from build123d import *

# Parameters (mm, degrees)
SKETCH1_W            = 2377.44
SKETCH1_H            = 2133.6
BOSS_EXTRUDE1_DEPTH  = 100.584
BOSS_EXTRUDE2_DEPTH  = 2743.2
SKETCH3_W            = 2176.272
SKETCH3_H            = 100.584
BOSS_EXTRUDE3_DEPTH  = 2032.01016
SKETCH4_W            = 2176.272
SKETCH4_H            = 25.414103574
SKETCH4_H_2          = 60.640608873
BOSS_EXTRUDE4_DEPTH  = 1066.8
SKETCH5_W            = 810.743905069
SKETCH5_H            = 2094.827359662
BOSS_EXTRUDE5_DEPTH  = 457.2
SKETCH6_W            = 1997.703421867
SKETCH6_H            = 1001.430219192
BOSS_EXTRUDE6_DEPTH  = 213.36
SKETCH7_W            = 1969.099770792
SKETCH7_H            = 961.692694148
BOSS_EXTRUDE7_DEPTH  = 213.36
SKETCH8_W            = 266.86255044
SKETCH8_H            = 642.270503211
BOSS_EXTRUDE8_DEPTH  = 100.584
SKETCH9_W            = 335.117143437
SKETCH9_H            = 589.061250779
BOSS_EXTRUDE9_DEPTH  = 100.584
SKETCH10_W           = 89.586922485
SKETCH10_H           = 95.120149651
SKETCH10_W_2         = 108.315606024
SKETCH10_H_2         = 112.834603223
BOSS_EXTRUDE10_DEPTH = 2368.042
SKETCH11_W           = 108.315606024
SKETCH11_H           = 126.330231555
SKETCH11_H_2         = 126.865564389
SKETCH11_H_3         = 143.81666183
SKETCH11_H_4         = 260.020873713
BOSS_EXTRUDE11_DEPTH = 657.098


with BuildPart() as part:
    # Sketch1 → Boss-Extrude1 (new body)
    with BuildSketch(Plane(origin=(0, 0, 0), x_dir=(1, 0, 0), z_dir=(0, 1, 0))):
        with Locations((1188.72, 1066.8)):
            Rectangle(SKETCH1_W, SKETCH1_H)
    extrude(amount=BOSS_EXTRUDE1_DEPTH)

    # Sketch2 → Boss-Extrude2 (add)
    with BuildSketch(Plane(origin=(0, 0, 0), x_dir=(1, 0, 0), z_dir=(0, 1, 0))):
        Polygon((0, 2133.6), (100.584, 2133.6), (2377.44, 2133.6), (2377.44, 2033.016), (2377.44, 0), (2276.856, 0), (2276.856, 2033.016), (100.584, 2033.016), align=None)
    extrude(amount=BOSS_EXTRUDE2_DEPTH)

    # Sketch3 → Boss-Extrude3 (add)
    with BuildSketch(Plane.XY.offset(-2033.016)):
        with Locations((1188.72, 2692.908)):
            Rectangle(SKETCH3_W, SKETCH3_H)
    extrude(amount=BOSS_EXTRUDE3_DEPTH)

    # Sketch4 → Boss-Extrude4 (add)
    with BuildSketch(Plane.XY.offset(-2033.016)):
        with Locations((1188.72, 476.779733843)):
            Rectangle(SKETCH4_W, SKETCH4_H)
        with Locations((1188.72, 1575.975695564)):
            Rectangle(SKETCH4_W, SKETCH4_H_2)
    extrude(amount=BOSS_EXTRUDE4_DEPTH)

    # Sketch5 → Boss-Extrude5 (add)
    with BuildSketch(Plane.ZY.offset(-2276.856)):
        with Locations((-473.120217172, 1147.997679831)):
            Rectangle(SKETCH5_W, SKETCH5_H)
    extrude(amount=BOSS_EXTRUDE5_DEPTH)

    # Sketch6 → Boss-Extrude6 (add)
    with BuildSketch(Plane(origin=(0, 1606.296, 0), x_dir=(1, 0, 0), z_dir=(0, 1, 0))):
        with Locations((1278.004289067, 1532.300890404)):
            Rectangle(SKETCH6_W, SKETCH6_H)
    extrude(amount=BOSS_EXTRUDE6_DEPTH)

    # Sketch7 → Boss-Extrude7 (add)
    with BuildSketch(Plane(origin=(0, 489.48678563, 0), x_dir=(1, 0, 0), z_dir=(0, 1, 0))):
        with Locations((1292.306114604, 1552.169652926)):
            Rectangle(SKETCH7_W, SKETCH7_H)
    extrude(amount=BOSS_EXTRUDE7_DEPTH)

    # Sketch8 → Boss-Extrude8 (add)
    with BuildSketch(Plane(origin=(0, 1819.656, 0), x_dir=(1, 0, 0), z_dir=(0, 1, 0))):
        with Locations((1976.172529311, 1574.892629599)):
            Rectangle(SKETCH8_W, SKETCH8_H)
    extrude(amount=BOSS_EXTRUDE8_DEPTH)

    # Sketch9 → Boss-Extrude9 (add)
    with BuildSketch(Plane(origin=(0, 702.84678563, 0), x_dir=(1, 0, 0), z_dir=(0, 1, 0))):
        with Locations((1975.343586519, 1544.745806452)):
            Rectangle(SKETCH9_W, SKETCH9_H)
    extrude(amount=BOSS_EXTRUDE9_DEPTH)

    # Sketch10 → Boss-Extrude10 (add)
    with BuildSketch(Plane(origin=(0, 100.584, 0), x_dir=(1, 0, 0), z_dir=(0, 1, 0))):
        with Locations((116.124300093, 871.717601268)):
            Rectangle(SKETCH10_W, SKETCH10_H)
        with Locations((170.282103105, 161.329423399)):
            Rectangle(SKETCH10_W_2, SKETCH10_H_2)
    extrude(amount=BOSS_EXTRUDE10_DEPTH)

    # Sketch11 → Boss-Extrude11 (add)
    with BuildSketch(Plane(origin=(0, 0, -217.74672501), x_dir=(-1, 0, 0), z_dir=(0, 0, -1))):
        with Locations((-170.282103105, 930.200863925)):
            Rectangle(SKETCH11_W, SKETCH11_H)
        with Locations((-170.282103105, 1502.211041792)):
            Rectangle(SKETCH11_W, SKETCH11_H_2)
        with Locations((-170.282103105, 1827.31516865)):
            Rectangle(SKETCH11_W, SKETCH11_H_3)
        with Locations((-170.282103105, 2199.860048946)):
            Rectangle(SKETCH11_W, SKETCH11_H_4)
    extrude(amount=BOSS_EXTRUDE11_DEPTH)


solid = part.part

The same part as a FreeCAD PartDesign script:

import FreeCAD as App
import Part
import Sketcher
from FreeCAD import Vector
Q = App.Units.Quantity

doc = App.newDocument("Part")
body = doc.addObject("PartDesign::Body", "Body")

# Sketch on XZ plane
sketch1 = body.newObject("Sketcher::SketchObject", "Sketch")
sketch1.AttachmentSupport = (doc.getObject("XZ_Plane"), [""])
sketch1.MapMode = "FlatFace"
sketch1.addGeometry(Part.LineSegment(Vector(0, -2134, 0), Vector(0, 0, 0)), False)
sketch1.addGeometry(Part.LineSegment(Vector(0, 0, 0), Vector(2377, 0, 0)), False)
sketch1.addGeometry(Part.LineSegment(Vector(2377, 0, 0), Vector(2377, -2134, 0)), False)
sketch1.addGeometry(Part.LineSegment(Vector(2377, -2134, 0), Vector(0, -2134, 0)), False)
sketch1.addConstraint(Sketcher.Constraint("Coincident", 0, 2, 1, 1))
sketch1.addConstraint(Sketcher.Constraint("Coincident", 1, 2, 2, 1))
sketch1.addConstraint(Sketcher.Constraint("Coincident", 2, 2, 3, 1))
sketch1.addConstraint(Sketcher.Constraint("Coincident", 3, 2, 0, 1))
sketch1.addConstraint(Sketcher.Constraint("Vertical", 0))
sketch1.addConstraint(Sketcher.Constraint("Horizontal", 1))
sketch1.addConstraint(Sketcher.Constraint("Vertical", 2))
sketch1.addConstraint(Sketcher.Constraint("Horizontal", 3))
sketch1.addConstraint(Sketcher.Constraint("Coincident", 0, 2, -1, 1))
sketch1.addConstraint(Sketcher.Constraint("DistanceY", 0, 1, 0, 2, Q("84 in")))
sketch1.addConstraint(Sketcher.Constraint("DistanceX", 1, 1, 1, 2, Q("93.6 in")))
pad1 = body.newObject("PartDesign::Pad", "Pad")
pad1.Profile = sketch1
pad1.Length = Q("3.96 in")
pad1.Reversed = True

# Sketch on XZ plane
sketch2 = body.newObject("Sketcher::SketchObject", "Sketch001")
sketch2.AttachmentSupport = (doc.getObject("XZ_Plane"), [""])
sketch2.MapMode = "FlatFace"
sketch2.addGeometry(Part.LineSegment(Vector(2377, -2134, 0), Vector(0, -2134, 0)), False)
sketch2.addGeometry(Part.LineSegment(Vector(0, -2134, 0), Vector(101, -2033, 0)), False)
sketch2.addGeometry(Part.LineSegment(Vector(101, -2033, 0), Vector(2277, -2033, 0)), False)
sketch2.addGeometry(Part.LineSegment(Vector(2277, -2033, 0), Vector(2277, 0, 0)), False)
sketch2.addGeometry(Part.LineSegment(Vector(2277, 0, 0), Vector(2377, 0, 0)), False)
sketch2.addGeometry(Part.LineSegment(Vector(2377, 0, 0), Vector(2377, -2134, 0)), False)
sketch2.addConstraint(Sketcher.Constraint("Coincident", 0, 2, 1, 1))
sketch2.addConstraint(Sketcher.Constraint("Coincident", 1, 2, 2, 1))
sketch2.addConstraint(Sketcher.Constraint("Coincident", 2, 2, 3, 1))
sketch2.addConstraint(Sketcher.Constraint("Coincident", 3, 2, 4, 1))
sketch2.addConstraint(Sketcher.Constraint("Coincident", 4, 2, 5, 1))
sketch2.addConstraint(Sketcher.Constraint("Coincident", 5, 2, 0, 1))
sketch2.addConstraint(Sketcher.Constraint("Horizontal", 0))
sketch2.addConstraint(Sketcher.Constraint("Horizontal", 2))
sketch2.addConstraint(Sketcher.Constraint("Vertical", 3))
sketch2.addConstraint(Sketcher.Constraint("Horizontal", 4))
sketch2.addConstraint(Sketcher.Constraint("Vertical", 5))
sketch2.addConstraint(Sketcher.Constraint("PointOnObject", 0, 2, -2))
sketch2.addConstraint(Sketcher.Constraint("PointOnObject", 3, 2, -1))
sketch2.addConstraint(Sketcher.Constraint("DistanceY", 5, 2, 5, 1, Q("84 in")))
sketch2.addConstraint(Sketcher.Constraint("DistanceX", 0, 2, 0, 1, Q("93.6 in")))
sketch2.addConstraint(Sketcher.Constraint("Angle", 1, Q("45 deg")))
sketch2.addConstraint(Sketcher.Constraint("DistanceX", 2, 1, 2, 2, Q("85.68 in")))
sketch2.addConstraint(Sketcher.Constraint("DistanceX", 4, 1, 4, 2, Q("3.96 in")))
pad2 = body.newObject("PartDesign::Pad", "Pad001")
pad2.Profile = sketch2
pad2.Length = Q("108 in")
pad2.Reversed = True

# Sketch on XY plane
sketch3 = body.newObject("Sketcher::SketchObject", "Sketch002")
sketch3.AttachmentSupport = (doc.getObject("XY_Plane"), [""])
sketch3.MapMode = "FlatFace"
sketch3.AttachmentOffset = App.Placement(Vector(0, 0, -80.04 * 25.4), App.Rotation())
sketch3.addGeometry(Part.LineSegment(Vector(101, 2743, 0), Vector(101, 2643, 0)), False)
sketch3.addGeometry(Part.LineSegment(Vector(101, 2643, 0), Vector(2277, 2643, 0)), False)
sketch3.addGeometry(Part.LineSegment(Vector(2277, 2643, 0), Vector(2277, 2743, 0)), False)
sketch3.addGeometry(Part.LineSegment(Vector(2277, 2743, 0), Vector(101, 2743, 0)), False)
sketch3.addConstraint(Sketcher.Constraint("Coincident", 0, 2, 1, 1))
sketch3.addConstraint(Sketcher.Constraint("Coincident", 1, 2, 2, 1))
sketch3.addConstraint(Sketcher.Constraint("Coincident", 2, 2, 3, 1))
sketch3.addConstraint(Sketcher.Constraint("Coincident", 3, 2, 0, 1))
sketch3.addConstraint(Sketcher.Constraint("Vertical", 0))
sketch3.addConstraint(Sketcher.Constraint("Horizontal", 1))
sketch3.addConstraint(Sketcher.Constraint("Vertical", 2))
sketch3.addConstraint(Sketcher.Constraint("Horizontal", 3))
sketch3.addConstraint(Sketcher.Constraint("DistanceY", -1, 1, 2, 2, Q("108 in")))
sketch3.addConstraint(Sketcher.Constraint("DistanceX", 1, 1, 1, 2, Q("85.68 in")))
sketch3.addConstraint(Sketcher.Constraint("DistanceY", 0, 2, 0, 1, Q("3.96 in")))
sketch3.addConstraint(Sketcher.Constraint("DistanceX", -1, 1, 0, 2, Q("3.96 in")))
pad3 = body.newObject("PartDesign::Pad", "Pad002")
pad3.Profile = sketch3
pad3.Length = Q("80.0004 in")

# Sketch on XY plane
sketch4 = body.newObject("Sketcher::SketchObject", "Sketch003")
sketch4.AttachmentSupport = (doc.getObject("XY_Plane"), [""])
sketch4.MapMode = "FlatFace"
sketch4.AttachmentOffset = App.Placement(Vector(0, 0, -80.04 * 25.4), App.Rotation())
sketch4.addGeometry(Part.LineSegment(Vector(101, 489, 0), Vector(101, 464, 0)), False)
sketch4.addGeometry(Part.LineSegment(Vector(101, 464, 0), Vector(2277, 464, 0)), False)
sketch4.addGeometry(Part.LineSegment(Vector(2277, 464, 0), Vector(2277, 489, 0)), False)
sketch4.addGeometry(Part.LineSegment(Vector(2277, 489, 0), Vector(101, 489, 0)), False)
sketch4.addGeometry(Part.LineSegment(Vector(101, 1606, 0), Vector(101, 1546, 0)), False)
sketch4.addGeometry(Part.LineSegment(Vector(101, 1546, 0), Vector(2277, 1546, 0)), False)
sketch4.addGeometry(Part.LineSegment(Vector(2277, 1546, 0), Vector(2277, 1606, 0)), False)
sketch4.addGeometry(Part.LineSegment(Vector(2277, 1606, 0), Vector(101, 1606, 0)), False)
sketch4.addConstraint(Sketcher.Constraint("Coincident", 0, 2, 1, 1))
sketch4.addConstraint(Sketcher.Constraint("Coincident", 1, 2, 2, 1))
sketch4.addConstraint(Sketcher.Constraint("Coincident", 2, 2, 3, 1))
sketch4.addConstraint(Sketcher.Constraint("Coincident", 3, 2, 0, 1))
sketch4.addConstraint(Sketcher.Constraint("Coincident", 4, 2, 5, 1))
sketch4.addConstraint(Sketcher.Constraint("Coincident", 5, 2, 6, 1))
sketch4.addConstraint(Sketcher.Constraint("Coincident", 6, 2, 7, 1))
sketch4.addConstraint(Sketcher.Constraint("Coincident", 7, 2, 4, 1))
sketch4.addConstraint(Sketcher.Constraint("Vertical", 0))
sketch4.addConstraint(Sketcher.Constraint("Horizontal", 1))
sketch4.addConstraint(Sketcher.Constraint("Vertical", 2))
sketch4.addConstraint(Sketcher.Constraint("Horizontal", 3))
sketch4.addConstraint(Sketcher.Constraint("Vertical", 4))
sketch4.addConstraint(Sketcher.Constraint("Horizontal", 5))
sketch4.addConstraint(Sketcher.Constraint("Vertical", 6))
sketch4.addConstraint(Sketcher.Constraint("Horizontal", 7))
sketch4.addConstraint(Sketcher.Constraint("Vertical", 3, 2, 4, 2))
sketch4.addConstraint(Sketcher.Constraint("Vertical", 2, 2, 5, 2))
sketch4.addConstraint(Sketcher.Constraint("DistanceX", 1, 1, 1, 2, Q("85.68 in")))
sketch4.addConstraint(Sketcher.Constraint("DistanceX", -1, 1, 0, 2, Q("3.96 in")))
sketch4.addConstraint(Sketcher.Constraint("DistanceY", -1, 1, 6, 2, Q("63.24 in")))
sketch4.addConstraint(Sketcher.Constraint("DistanceY", 4, 2, 4, 1, Q("60.640609 mm")))
sketch4.addConstraint(Sketcher.Constraint("DistanceY", 0, 2, 0, 1, Q("25.414104 mm")))
sketch4.addConstraint(Sketcher.Constraint("DistanceY", 0, 2, 4, 2, Q("1081.582709 mm")))
pad4 = body.newObject("PartDesign::Pad", "Pad003")
pad4.Profile = sketch4
pad4.Length = Q("42 in")

# Sketch on YZ plane
sketch5 = body.newObject("Sketcher::SketchObject", "Sketch004")
sketch5.AttachmentSupport = (doc.getObject("YZ_Plane"), [""])
sketch5.MapMode = "FlatFace"
sketch5.AttachmentOffset = App.Placement(Vector(0, 0, 89.64 * 25.4), App.Rotation())
sketch5.addGeometry(Part.LineSegment(Vector(2195, -878, 0), Vector(101, -878, 0)), False)
sketch5.addGeometry(Part.LineSegment(Vector(101, -878, 0), Vector(101, -68, 0)), False)
sketch5.addGeometry(Part.LineSegment(Vector(101, -68, 0), Vector(2195, -68, 0)), False)
sketch5.addGeometry(Part.LineSegment(Vector(2195, -68, 0), Vector(2195, -878, 0)), False)
sketch5.addConstraint(Sketcher.Constraint("Coincident", 0, 2, 1, 1))
sketch5.addConstraint(Sketcher.Constraint("Coincident", 1, 2, 2, 1))
sketch5.addConstraint(Sketcher.Constraint("Coincident", 2, 2, 3, 1))
sketch5.addConstraint(Sketcher.Constraint("Coincident", 3, 2, 0, 1))
sketch5.addConstraint(Sketcher.Constraint("Horizontal", 0))
sketch5.addConstraint(Sketcher.Constraint("Vertical", 1))
sketch5.addConstraint(Sketcher.Constraint("Horizontal", 2))
sketch5.addConstraint(Sketcher.Constraint("Vertical", 3))
sketch5.addConstraint(Sketcher.Constraint("DistanceX", -1, 1, 0, 2, Q("3.96 in")))
sketch5.addConstraint(Sketcher.Constraint("DistanceX", 0, 2, 0, 1, Q("2094.82736 mm")))
sketch5.addConstraint(Sketcher.Constraint("DistanceY", 1, 1, 1, 2, Q("810.743905 mm")))
sketch5.addConstraint(Sketcher.Constraint("DistanceY", 0, 2, -1, 1, Q("878.49217 mm")))
pad5 = body.newObject("PartDesign::Pad", "Pad004")
pad5.Profile = sketch5
pad5.Length = Q("18 in")
pad5.Reversed = True

# Sketch on XZ plane
sketch6 = body.newObject("Sketcher::SketchObject", "Sketch005")
sketch6.AttachmentSupport = (doc.getObject("XZ_Plane"), [""])
sketch6.MapMode = "FlatFace"
sketch6.AttachmentOffset = App.Placement(Vector(0, 0, -63.24 * 25.4), App.Rotation())
sketch6.addGeometry(Part.LineSegment(Vector(279, -2033, 0), Vector(279, -1032, 0)), False)
sketch6.addGeometry(Part.LineSegment(Vector(279, -1032, 0), Vector(2277, -1032, 0)), False)
sketch6.addGeometry(Part.LineSegment(Vector(2277, -1032, 0), Vector(2277, -2033, 0)), False)
sketch6.addGeometry(Part.LineSegment(Vector(2277, -2033, 0), Vector(279, -2033, 0)), False)
sketch6.addConstraint(Sketcher.Constraint("Coincident", 0, 2, 1, 1))
sketch6.addConstraint(Sketcher.Constraint("Coincident", 1, 2, 2, 1))
sketch6.addConstraint(Sketcher.Constraint("Coincident", 2, 2, 3, 1))
sketch6.addConstraint(Sketcher.Constraint("Coincident", 3, 2, 0, 1))
sketch6.addConstraint(Sketcher.Constraint("Vertical", 0))
sketch6.addConstraint(Sketcher.Constraint("Horizontal", 1))
sketch6.addConstraint(Sketcher.Constraint("Vertical", 2))
sketch6.addConstraint(Sketcher.Constraint("Horizontal", 3))
sketch6.addConstraint(Sketcher.Constraint("DistanceX", -1, 1, 1, 2, Q("89.64 in")))
sketch6.addConstraint(Sketcher.Constraint("DistanceY", 2, 2, -1, 1, Q("80.04 in")))
sketch6.addConstraint(Sketcher.Constraint("DistanceX", 1, 1, 1, 2, Q("1997.703422 mm")))
sketch6.addConstraint(Sketcher.Constraint("DistanceY", 0, 1, 0, 2, Q("1001.430219 mm")))
pad6 = body.newObject("PartDesign::Pad", "Pad005")
pad6.Profile = sketch6
pad6.Length = Q("8.4 in")
pad6.Reversed = True

# Sketch on XZ plane
sketch7 = body.newObject("Sketcher::SketchObject", "Sketch006")
sketch7.AttachmentSupport = (doc.getObject("XZ_Plane"), [""])
sketch7.MapMode = "FlatFace"
sketch7.AttachmentOffset = App.Placement(Vector(0, 0, -489.486786), App.Rotation())
sketch7.addGeometry(Part.LineSegment(Vector(308, -2033, 0), Vector(308, -1071, 0)), False)
sketch7.addGeometry(Part.LineSegment(Vector(308, -1071, 0), Vector(2277, -1071, 0)), False)
sketch7.addGeometry(Part.LineSegment(Vector(2277, -1071, 0), Vector(2277, -2033, 0)), False)
sketch7.addGeometry(Part.LineSegment(Vector(2277, -2033, 0), Vector(308, -2033, 0)), False)
sketch7.addConstraint(Sketcher.Constraint("Coincident", 0, 2, 1, 1))
sketch7.addConstraint(Sketcher.Constraint("Coincident", 1, 2, 2, 1))
sketch7.addConstraint(Sketcher.Constraint("Coincident", 2, 2, 3, 1))
sketch7.addConstraint(Sketcher.Constraint("Coincident", 3, 2, 0, 1))
sketch7.addConstraint(Sketcher.Constraint("Vertical", 0))
sketch7.addConstraint(Sketcher.Constraint("Horizontal", 1))
sketch7.addConstraint(Sketcher.Constraint("Vertical", 2))
sketch7.addConstraint(Sketcher.Constraint("Horizontal", 3))
sketch7.addConstraint(Sketcher.Constraint("DistanceX", -1, 1, 1, 2, Q("89.64 in")))
sketch7.addConstraint(Sketcher.Constraint("DistanceY", 2, 2, -1, 1, Q("80.04 in")))
sketch7.addConstraint(Sketcher.Constraint("DistanceX", 1, 1, 1, 2, Q("1969.099771 mm")))
sketch7.addConstraint(Sketcher.Constraint("DistanceY", 0, 1, 0, 2, Q("961.692694 mm")))
pad7 = body.newObject("PartDesign::Pad", "Pad006")
pad7.Profile = sketch7
pad7.Length = Q("8.4 in")
pad7.Reversed = True

# Sketch on XZ plane
sketch8 = body.newObject("Sketcher::SketchObject", "Sketch007")
sketch8.AttachmentSupport = (doc.getObject("XZ_Plane"), [""])
sketch8.MapMode = "FlatFace"
sketch8.AttachmentOffset = App.Placement(Vector(0, 0, -71.64 * 25.4), App.Rotation())
sketch8.addGeometry(Part.LineSegment(Vector(1843, -1896, 0), Vector(1843, -1254, 0)), False)
sketch8.addGeometry(Part.LineSegment(Vector(1843, -1254, 0), Vector(2110, -1254, 0)), False)
sketch8.addGeometry(Part.LineSegment(Vector(2110, -1254, 0), Vector(2110, -1896, 0)), False)
sketch8.addGeometry(Part.LineSegment(Vector(2110, -1896, 0), Vector(1843, -1896, 0)), False)
sketch8.addConstraint(Sketcher.Constraint("Coincident", 0, 2, 1, 1))
sketch8.addConstraint(Sketcher.Constraint("Coincident", 1, 2, 2, 1))
sketch8.addConstraint(Sketcher.Constraint("Coincident", 2, 2, 3, 1))
sketch8.addConstraint(Sketcher.Constraint("Coincident", 3, 2, 0, 1))
sketch8.addConstraint(Sketcher.Constraint("Vertical", 0))
sketch8.addConstraint(Sketcher.Constraint("Horizontal", 1))
sketch8.addConstraint(Sketcher.Constraint("Vertical", 2))
sketch8.addConstraint(Sketcher.Constraint("Horizontal", 3))
sketch8.addConstraint(Sketcher.Constraint("DistanceX", 1, 1, 1, 2, Q("266.86255 mm")))
sketch8.addConstraint(Sketcher.Constraint("DistanceY", 0, 1, 0, 2, Q("642.270503 mm")))
sketch8.addConstraint(Sketcher.Constraint("DistanceY", 2, 2, -1, 1, Q("1896.027881 mm")))
sketch8.addConstraint(Sketcher.Constraint("DistanceX", -1, 1, 0, 2, Q("1842.741254 mm")))
pad8 = body.newObject("PartDesign::Pad", "Pad007")
pad8.Profile = sketch8
pad8.Length = Q("3.96 in")
pad8.Reversed = True

# Sketch on XZ plane
sketch9 = body.newObject("Sketcher::SketchObject", "Sketch008")
sketch9.AttachmentSupport = (doc.getObject("XZ_Plane"), [""])
sketch9.MapMode = "FlatFace"
sketch9.AttachmentOffset = App.Placement(Vector(0, 0, -702.846786), App.Rotation())
sketch9.addGeometry(Part.LineSegment(Vector(1808, -1839, 0), Vector(1808, -1250, 0)), False)
sketch9.addGeometry(Part.LineSegment(Vector(1808, -1250, 0), Vector(2143, -1250, 0)), False)
sketch9.addGeometry(Part.LineSegment(Vector(2143, -1250, 0), Vector(2143, -1839, 0)), False)
sketch9.addGeometry(Part.LineSegment(Vector(2143, -1839, 0), Vector(1808, -1839, 0)), False)
sketch9.addConstraint(Sketcher.Constraint("Coincident", 0, 2, 1, 1))
sketch9.addConstraint(Sketcher.Constraint("Coincident", 1, 2, 2, 1))
sketch9.addConstraint(Sketcher.Constraint("Coincident", 2, 2, 3, 1))
sketch9.addConstraint(Sketcher.Constraint("Coincident", 3, 2, 0, 1))
sketch9.addConstraint(Sketcher.Constraint("Vertical", 0))
sketch9.addConstraint(Sketcher.Constraint("Horizontal", 1))
sketch9.addConstraint(Sketcher.Constraint("Vertical", 2))
sketch9.addConstraint(Sketcher.Constraint("Horizontal", 3))
sketch9.addConstraint(Sketcher.Constraint("DistanceY", 0, 1, 0, 2, Q("589.061251 mm")))
sketch9.addConstraint(Sketcher.Constraint("DistanceX", 1, 1, 1, 2, Q("335.117143 mm")))
sketch9.addConstraint(Sketcher.Constraint("DistanceY", 0, 2, -1, 1, Q("1250.215181 mm")))
sketch9.addConstraint(Sketcher.Constraint("DistanceX", -1, 1, 1, 2, Q("2142.902158 mm")))
pad9 = body.newObject("PartDesign::Pad", "Pad008")
pad9.Profile = sketch9
pad9.Length = Q("3.96 in")
pad9.Reversed = True

# Sketch on XZ plane
sketch10 = body.newObject("Sketcher::SketchObject", "Sketch009")
sketch10.AttachmentSupport = (doc.getObject("XZ_Plane"), [""])
sketch10.MapMode = "FlatFace"
sketch10.AttachmentOffset = App.Placement(Vector(0, 0, -3.96 * 25.4), App.Rotation())
sketch10.addGeometry(Part.LineSegment(Vector(71, -919, 0), Vector(71, -824, 0)), False)
sketch10.addGeometry(Part.LineSegment(Vector(71, -824, 0), Vector(161, -824, 0)), False)
sketch10.addGeometry(Part.LineSegment(Vector(161, -824, 0), Vector(161, -919, 0)), False)
sketch10.addGeometry(Part.LineSegment(Vector(161, -919, 0), Vector(71, -919, 0)), False)
sketch10.addGeometry(Part.LineSegment(Vector(116, -218, 0), Vector(116, -105, 0)), False)
sketch10.addGeometry(Part.LineSegment(Vector(116, -105, 0), Vector(224, -105, 0)), False)
sketch10.addGeometry(Part.LineSegment(Vector(224, -105, 0), Vector(224, -218, 0)), False)
sketch10.addGeometry(Part.LineSegment(Vector(224, -218, 0), Vector(116, -218, 0)), False)
sketch10.addConstraint(Sketcher.Constraint("Coincident", 0, 2, 1, 1))
sketch10.addConstraint(Sketcher.Constraint("Coincident", 1, 2, 2, 1))
sketch10.addConstraint(Sketcher.Constraint("Coincident", 2, 2, 3, 1))
sketch10.addConstraint(Sketcher.Constraint("Coincident", 3, 2, 0, 1))
sketch10.addConstraint(Sketcher.Constraint("Coincident", 4, 2, 5, 1))
sketch10.addConstraint(Sketcher.Constraint("Coincident", 5, 2, 6, 1))
sketch10.addConstraint(Sketcher.Constraint("Coincident", 6, 2, 7, 1))
sketch10.addConstraint(Sketcher.Constraint("Coincident", 7, 2, 4, 1))
sketch10.addConstraint(Sketcher.Constraint("Vertical", 0))
sketch10.addConstraint(Sketcher.Constraint("Horizontal", 1))
sketch10.addConstraint(Sketcher.Constraint("Vertical", 2))
sketch10.addConstraint(Sketcher.Constraint("Horizontal", 3))
sketch10.addConstraint(Sketcher.Constraint("Vertical", 4))
sketch10.addConstraint(Sketcher.Constraint("Horizontal", 5))
sketch10.addConstraint(Sketcher.Constraint("Vertical", 6))
sketch10.addConstraint(Sketcher.Constraint("Horizontal", 7))
sketch10.addConstraint(Sketcher.Constraint("DistanceY", 0, 1, 0, 2, Q("95.12015 mm")))
sketch10.addConstraint(Sketcher.Constraint("DistanceX", -1, 1, 4, 2, Q("116.1243 mm")))
sketch10.addConstraint(Sketcher.Constraint("DistanceY", 1, 2, 6, 2, Q("606.410801 mm")))
sketch10.addConstraint(Sketcher.Constraint("DistanceX", 1, 1, 1, 2, Q("89.586922 mm")))
sketch10.addConstraint(Sketcher.Constraint("DistanceX", 5, 1, 5, 2, Q("108.315606 mm")))
sketch10.addConstraint(Sketcher.Constraint("DistanceY", 4, 1, 4, 2, Q("112.834603 mm")))
sketch10.addConstraint(Sketcher.Constraint("DistanceX", -1, 1, 0, 2, Q("71.330839 mm")))
sketch10.addConstraint(Sketcher.Constraint("DistanceY", 4, 2, -1, 1, Q("104.912122 mm")))
pad10 = body.newObject("PartDesign::Pad", "Pad009")
pad10.Profile = sketch10
pad10.Length = Q("93.23 in")
pad10.Reversed = True

# Sketch on XY plane
sketch11 = body.newObject("Sketcher::SketchObject", "Sketch010")
sketch11.AttachmentSupport = (doc.getObject("XY_Plane"), [""])
sketch11.MapMode = "FlatFace"
sketch11.AttachmentOffset = App.Placement(Vector(0, 0, -217.746725), App.Rotation())
sketch11.addGeometry(Part.LineSegment(Vector(224, 993, 0), Vector(224, 867, 0)), False)
sketch11.addGeometry(Part.LineSegment(Vector(224, 867, 0), Vector(116, 867, 0)), False)
sketch11.addGeometry(Part.LineSegment(Vector(116, 867, 0), Vector(116, 993, 0)), False)
sketch11.addGeometry(Part.LineSegment(Vector(116, 993, 0), Vector(224, 993, 0)), False)
sketch11.addGeometry(Part.LineSegment(Vector(224, 1566, 0), Vector(224, 1439, 0)), False)
sketch11.addGeometry(Part.LineSegment(Vector(224, 1439, 0), Vector(116, 1439, 0)), False)
sketch11.addGeometry(Part.LineSegment(Vector(116, 1439, 0), Vector(116, 1566, 0)), False)
sketch11.addGeometry(Part.LineSegment(Vector(116, 1566, 0), Vector(224, 1566, 0)), False)
sketch11.addGeometry(Part.LineSegment(Vector(224, 1899, 0), Vector(224, 1755, 0)), False)
sketch11.addGeometry(Part.LineSegment(Vector(224, 1755, 0), Vector(116, 1755, 0)), False)
sketch11.addGeometry(Part.LineSegment(Vector(116, 1755, 0), Vector(116, 1899, 0)), False)
sketch11.addGeometry(Part.LineSegment(Vector(116, 1899, 0), Vector(224, 1899, 0)), False)
sketch11.addGeometry(Part.LineSegment(Vector(224, 2330, 0), Vector(224, 2070, 0)), False)
sketch11.addGeometry(Part.LineSegment(Vector(224, 2070, 0), Vector(116, 2070, 0)), False)
sketch11.addGeometry(Part.LineSegment(Vector(116, 2070, 0), Vector(116, 2330, 0)), False)
sketch11.addGeometry(Part.LineSegment(Vector(116, 2330, 0), Vector(224, 2330, 0)), False)
sketch11.addConstraint(Sketcher.Constraint("Coincident", 0, 2, 1, 1))
sketch11.addConstraint(Sketcher.Constraint("Coincident", 1, 2, 2, 1))
sketch11.addConstraint(Sketcher.Constraint("Coincident", 2, 2, 3, 1))
sketch11.addConstraint(Sketcher.Constraint("Coincident", 3, 2, 0, 1))
sketch11.addConstraint(Sketcher.Constraint("Coincident", 4, 2, 5, 1))
sketch11.addConstraint(Sketcher.Constraint("Coincident", 5, 2, 6, 1))
sketch11.addConstraint(Sketcher.Constraint("Coincident", 6, 2, 7, 1))
sketch11.addConstraint(Sketcher.Constraint("Coincident", 7, 2, 4, 1))
sketch11.addConstraint(Sketcher.Constraint("Coincident", 8, 2, 9, 1))
sketch11.addConstraint(Sketcher.Constraint("Coincident", 9, 2, 10, 1))
sketch11.addConstraint(Sketcher.Constraint("Coincident", 10, 2, 11, 1))
sketch11.addConstraint(Sketcher.Constraint("Coincident", 11, 2, 8, 1))
sketch11.addConstraint(Sketcher.Constraint("Coincident", 12, 2, 13, 1))
sketch11.addConstraint(Sketcher.Constraint("Coincident", 13, 2, 14, 1))
sketch11.addConstraint(Sketcher.Constraint("Coincident", 14, 2, 15, 1))
sketch11.addConstraint(Sketcher.Constraint("Coincident", 15, 2, 12, 1))
sketch11.addConstraint(Sketcher.Constraint("Vertical", 0))
sketch11.addConstraint(Sketcher.Constraint("Horizontal", 1))
sketch11.addConstraint(Sketcher.Constraint("Vertical", 2))
sketch11.addConstraint(Sketcher.Constraint("Horizontal", 3))
sketch11.addConstraint(Sketcher.Constraint("Vertical", 4))
sketch11.addConstraint(Sketcher.Constraint("Horizontal", 5))
sketch11.addConstraint(Sketcher.Constraint("Vertical", 6))
sketch11.addConstraint(Sketcher.Constraint("Horizontal", 7))
sketch11.addConstraint(Sketcher.Constraint("Vertical", 8))
sketch11.addConstraint(Sketcher.Constraint("Horizontal", 9))
sketch11.addConstraint(Sketcher.Constraint("Vertical", 10))
sketch11.addConstraint(Sketcher.Constraint("Horizontal", 11))
sketch11.addConstraint(Sketcher.Constraint("Vertical", 12))
sketch11.addConstraint(Sketcher.Constraint("Horizontal", 13))
sketch11.addConstraint(Sketcher.Constraint("Vertical", 14))
sketch11.addConstraint(Sketcher.Constraint("Horizontal", 15))
sketch11.addConstraint(Sketcher.Constraint("Vertical", 3, 2, 4, 2))
sketch11.addConstraint(Sketcher.Constraint("Vertical", 2, 2, 5, 2))
sketch11.addConstraint(Sketcher.Constraint("Vertical", 7, 2, 8, 2))
sketch11.addConstraint(Sketcher.Constraint("Vertical", 6, 2, 9, 2))
sketch11.addConstraint(Sketcher.Constraint("Vertical", 11, 2, 12, 2))
sketch11.addConstraint(Sketcher.Constraint("Vertical", 10, 2, 13, 2))
sketch11.addConstraint(Sketcher.Constraint("DistanceY", 0, 2, 0, 1, Q("126.330232 mm")))
sketch11.addConstraint(Sketcher.Constraint("DistanceY", 8, 2, 8, 1, Q("143.816662 mm")))
sketch11.addConstraint(Sketcher.Constraint("DistanceX", -1, 1, 1, 2, Q("116.1243 mm")))
sketch11.addConstraint(Sketcher.Constraint("DistanceY", -1, 1, 10, 2, Q("1899.2235 mm")))
sketch11.addConstraint(Sketcher.Constraint("DistanceX", 1, 2, 1, 1, Q("108.315606 mm")))
sketch11.addConstraint(Sketcher.Constraint("DistanceY", 4, 2, 4, 1, Q("126.865564 mm")))
sketch11.addConstraint(Sketcher.Constraint("DistanceY", 12, 2, 12, 1, Q("260.020874 mm")))
sketch11.addConstraint(Sketcher.Constraint("DistanceY", -1, 1, 0, 2, Q("867.035748 mm")))
sketch11.addConstraint(Sketcher.Constraint("DistanceY", -1, 1, 4, 2, Q("1438.77826 mm")))
sketch11.addConstraint(Sketcher.Constraint("DistanceY", 7, 2, 12, 2, Q("504.205788 mm")))
pad11 = body.newObject("PartDesign::Pad", "Pad010")
pad11.Profile = sketch11
pad11.Length = Q("25.87 in")
pad11.Reversed = True

doc.recompute()
